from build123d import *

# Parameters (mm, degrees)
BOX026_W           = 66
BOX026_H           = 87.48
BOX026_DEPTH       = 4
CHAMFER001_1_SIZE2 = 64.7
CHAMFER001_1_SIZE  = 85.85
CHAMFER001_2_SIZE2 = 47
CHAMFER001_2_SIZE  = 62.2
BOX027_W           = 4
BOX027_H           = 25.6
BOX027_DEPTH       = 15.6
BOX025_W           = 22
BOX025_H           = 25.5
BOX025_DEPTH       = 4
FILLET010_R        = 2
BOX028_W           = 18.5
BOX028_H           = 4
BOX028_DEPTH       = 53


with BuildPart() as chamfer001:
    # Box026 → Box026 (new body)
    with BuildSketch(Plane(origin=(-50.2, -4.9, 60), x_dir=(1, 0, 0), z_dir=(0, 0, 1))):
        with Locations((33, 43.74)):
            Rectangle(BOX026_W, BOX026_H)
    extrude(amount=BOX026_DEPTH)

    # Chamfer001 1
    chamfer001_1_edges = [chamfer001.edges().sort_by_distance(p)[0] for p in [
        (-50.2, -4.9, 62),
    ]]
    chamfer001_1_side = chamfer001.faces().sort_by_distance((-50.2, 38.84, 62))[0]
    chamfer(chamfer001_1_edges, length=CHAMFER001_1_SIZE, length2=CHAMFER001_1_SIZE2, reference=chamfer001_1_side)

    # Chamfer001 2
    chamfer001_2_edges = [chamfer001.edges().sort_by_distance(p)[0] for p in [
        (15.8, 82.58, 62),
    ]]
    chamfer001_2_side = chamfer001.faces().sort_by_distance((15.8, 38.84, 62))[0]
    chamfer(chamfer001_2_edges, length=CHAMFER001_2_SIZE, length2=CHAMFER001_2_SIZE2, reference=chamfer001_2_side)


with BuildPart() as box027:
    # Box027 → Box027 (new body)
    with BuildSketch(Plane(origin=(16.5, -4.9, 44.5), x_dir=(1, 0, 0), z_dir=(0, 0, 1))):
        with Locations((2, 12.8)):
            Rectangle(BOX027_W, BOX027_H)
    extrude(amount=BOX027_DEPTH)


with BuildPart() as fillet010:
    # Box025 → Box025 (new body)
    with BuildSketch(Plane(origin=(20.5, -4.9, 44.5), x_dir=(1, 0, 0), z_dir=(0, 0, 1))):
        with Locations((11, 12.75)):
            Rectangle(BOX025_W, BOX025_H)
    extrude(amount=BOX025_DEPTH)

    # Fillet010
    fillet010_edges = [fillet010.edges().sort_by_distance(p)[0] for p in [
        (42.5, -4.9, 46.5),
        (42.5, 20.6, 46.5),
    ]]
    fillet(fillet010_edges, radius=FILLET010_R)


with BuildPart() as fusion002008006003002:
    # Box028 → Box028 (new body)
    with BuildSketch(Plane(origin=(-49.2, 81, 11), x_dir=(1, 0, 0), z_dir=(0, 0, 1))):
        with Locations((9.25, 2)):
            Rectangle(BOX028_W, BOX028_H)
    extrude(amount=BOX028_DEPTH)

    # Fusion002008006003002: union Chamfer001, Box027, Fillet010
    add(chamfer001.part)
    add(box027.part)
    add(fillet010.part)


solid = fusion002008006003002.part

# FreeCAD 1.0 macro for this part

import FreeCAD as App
import Part
import Sketcher
from FreeCAD import Vector
Q = App.Units.Quantity


def edges_at(feature, points):
    """Names of the edges that pass closest to the given points."""
    edges = feature.Shape.Edges
    near = lambda p: min(range(len(edges)), key=lambda i: edges[i].distToShape(Part.Vertex(*p))[0])
    return sorted({f"Edge{near(p) + 1}" for p in points})


def add_polygon(sketch, points):
    """Adds a closed chain of lines whose ends are joined by coincident constraints."""
    first, n = sketch.GeometryCount, len(points)
    for a, b in zip(points, points[1:] + points[:1]):
        sketch.addGeometry(Part.LineSegment(App.Vector(*a, 0), App.Vector(*b, 0)), False)
    for i in range(n):
        sketch.addConstraint(Sketcher.Constraint("Coincident", first + i, 2, first + (i + 1) % n, 1))

doc = App.newDocument("Part")
body = doc.addObject("PartDesign::Body", "Body")

# Sketch on XY plane
sketch1 = doc.addObject("Sketcher::SketchObject", "Sketch")
body.addObject(sketch1)
sketch1.AttachmentSupport = (doc.XY_Plane, [""])
sketch1.MapMode = "FlatFace"
sketch1.AttachmentOffset = App.Placement(Vector(0, 0, 60), App.Rotation())
add_polygon(sketch1, [(-50, 83), (-50, -5), (16, -5), (16, 83)])  # lines 0-3
sketch1.addConstraint([
    Sketcher.Constraint("Vertical", 0),
    Sketcher.Constraint("Horizontal", 1),
    Sketcher.Constraint("Vertical", 2),
    Sketcher.Constraint("Horizontal", 3),
    Sketcher.Constraint("DistanceX", 1, 1, 1, 2, Q("66 mm")),
    Sketcher.Constraint("DistanceY", 0, 2, 0, 1, Q("87.48 mm")),
    Sketcher.Constraint("DistanceX", 0, 2, -1, 1, Q("50.2 mm")),
    Sketcher.Constraint("DistanceY", 0, 2, -1, 1, Q("4.9 mm")),
])
pad1 = doc.addObject("PartDesign::Pad", "Pad")
body.addObject(pad1)
pad1.Profile = sketch1
pad1.Length = 4
doc.recompute()

chamfer = doc.addObject("PartDesign::Chamfer", "Chamfer")
body.addObject(chamfer)
chamfer.Base = (pad1, edges_at(pad1, [(-50.2, -4.9, 62)]))
chamfer.ChamferType = "Two distances"
chamfer.Size = 85.85
chamfer.Size2 = 64.7
doc.recompute()

chamfer2 = doc.addObject("PartDesign::Chamfer", "Chamfer001")
body.addObject(chamfer2)
chamfer2.Base = (chamfer, edges_at(chamfer, [(15.8, 82.58, 62)]))
chamfer2.ChamferType = "Two distances"
chamfer2.Size = 62.2
chamfer2.Size2 = 47
chamfer2.FlipDirection = True
body2 = doc.addObject("PartDesign::Body", "Body001")

# Sketch on XY plane
sketch2 = doc.addObject("Sketcher::SketchObject", "Sketch001")
body2.addObject(sketch2)
sketch2.AttachmentSupport = (doc.getObject("XY_Plane001"), [""])
sketch2.MapMode = "FlatFace"
sketch2.AttachmentOffset = App.Placement(Vector(0, 0, 44.5), App.Rotation())
add_polygon(sketch2, [(16.5, 20.7), (16.5, -4.9), (20.5, -4.9), (20.5, 20.7)])  # lines 0-3
sketch2.addConstraint([
    Sketcher.Constraint("Vertical", 0),
    Sketcher.Constraint("Horizontal", 1),
    Sketcher.Constraint("Vertical", 2),
    Sketcher.Constraint("Horizontal", 3),
    Sketcher.Constraint("DistanceX", 1, 1, 1, 2, Q("4 mm")),
    Sketcher.Constraint("DistanceY", 0, 2, 0, 1, Q("25.6 mm")),
    Sketcher.Constraint("DistanceX", -1, 1, 0, 2, Q("16.5 mm")),
    Sketcher.Constraint("DistanceY", 0, 2, -1, 1, Q("4.9 mm")),
])
pad2 = doc.addObject("PartDesign::Pad", "Pad001")
body2.addObject(pad2)
pad2.Profile = sketch2
pad2.Length = 15.6
body3 = doc.addObject("PartDesign::Body", "Body002")

# Sketch on XY plane
sketch3 = doc.addObject("Sketcher::SketchObject", "Sketch002")
body3.addObject(sketch3)
sketch3.AttachmentSupport = (doc.getObject("XY_Plane002"), [""])
sketch3.MapMode = "FlatFace"
sketch3.AttachmentOffset = App.Placement(Vector(0, 0, 44.5), App.Rotation())
add_polygon(sketch3, [(20, 21), (20, -5), (42, -5), (42, 21)])  # lines 0-3
sketch3.addConstraint([
    Sketcher.Constraint("Vertical", 0),
    Sketcher.Constraint("Horizontal", 1),
    Sketcher.Constraint("Vertical", 2),
    Sketcher.Constraint("Horizontal", 3),
    Sketcher.Constraint("DistanceX", 1, 1, 1, 2, Q("22 mm")),
    Sketcher.Constraint("DistanceY", 0, 2, 0, 1, Q("25.5 mm")),
    Sketcher.Constraint("DistanceX", -1, 1, 0, 2, Q("20.5 mm")),
    Sketcher.Constraint("DistanceY", 0, 2, -1, 1, Q("4.9 mm")),
])
pad3 = doc.addObject("PartDesign::Pad", "Pad002")
body3.addObject(pad3)
pad3.Profile = sketch3
pad3.Length = 4
doc.recompute()

fillet = doc.addObject("PartDesign::Fillet", "Fillet")
body3.addObject(fillet)
fillet.Base = (pad3, edges_at(pad3, [(42.5, -4.9, 46.5), (42.5, 20.6, 46.5)]))
fillet.Radius = 2
body4 = doc.addObject("PartDesign::Body", "Body003")
body4.AllowCompound = True

# Sketch on XY plane
sketch4 = doc.addObject("Sketcher::SketchObject", "Sketch003")
body4.addObject(sketch4)
sketch4.AttachmentSupport = (doc.getObject("XY_Plane003"), [""])
sketch4.MapMode = "FlatFace"
sketch4.AttachmentOffset = App.Placement(Vector(0, 0, 11), App.Rotation())
add_polygon(sketch4, [(-49.2, 85), (-49.2, 81), (-30.7, 81), (-30.7, 85)])  # lines 0-3
sketch4.addConstraint([
    Sketcher.Constraint("Vertical", 0),
    Sketcher.Constraint("Horizontal", 1),
    Sketcher.Constraint("Vertical", 2),
    Sketcher.Constraint("Horizontal", 3),
    Sketcher.Constraint("DistanceY", 0, 2, 0, 1, Q("4 mm")),
    Sketcher.Constraint("DistanceX", 1, 1, 1, 2, Q("18.5 mm")),
    Sketcher.Constraint("DistanceY", -1, 1, 0, 2, Q("81 mm")),
    Sketcher.Constraint("DistanceX", 0, 2, -1, 1, Q("49.2 mm")),
])
pad4 = doc.addObject("PartDesign::Pad", "Pad003")
body4.addObject(pad4)
pad4.Profile = sketch4
pad4.Length = 53
doc.recompute()

boolean = doc.addObject("PartDesign::Boolean", "Boolean")
body4.addObject(boolean)
boolean.Type = "Fuse"
boolean.addObjects([body])
doc.recompute()

boolean2 = doc.addObject("PartDesign::Boolean", "Boolean001")
body4.addObject(boolean2)
boolean2.Type = "Fuse"
boolean2.addObjects([body2])
doc.recompute()

boolean3 = doc.addObject("PartDesign::Boolean", "Boolean002")
body4.addObject(boolean3)
boolean3.Type = "Fuse"
boolean3.addObjects([body3])

doc.recompute()
